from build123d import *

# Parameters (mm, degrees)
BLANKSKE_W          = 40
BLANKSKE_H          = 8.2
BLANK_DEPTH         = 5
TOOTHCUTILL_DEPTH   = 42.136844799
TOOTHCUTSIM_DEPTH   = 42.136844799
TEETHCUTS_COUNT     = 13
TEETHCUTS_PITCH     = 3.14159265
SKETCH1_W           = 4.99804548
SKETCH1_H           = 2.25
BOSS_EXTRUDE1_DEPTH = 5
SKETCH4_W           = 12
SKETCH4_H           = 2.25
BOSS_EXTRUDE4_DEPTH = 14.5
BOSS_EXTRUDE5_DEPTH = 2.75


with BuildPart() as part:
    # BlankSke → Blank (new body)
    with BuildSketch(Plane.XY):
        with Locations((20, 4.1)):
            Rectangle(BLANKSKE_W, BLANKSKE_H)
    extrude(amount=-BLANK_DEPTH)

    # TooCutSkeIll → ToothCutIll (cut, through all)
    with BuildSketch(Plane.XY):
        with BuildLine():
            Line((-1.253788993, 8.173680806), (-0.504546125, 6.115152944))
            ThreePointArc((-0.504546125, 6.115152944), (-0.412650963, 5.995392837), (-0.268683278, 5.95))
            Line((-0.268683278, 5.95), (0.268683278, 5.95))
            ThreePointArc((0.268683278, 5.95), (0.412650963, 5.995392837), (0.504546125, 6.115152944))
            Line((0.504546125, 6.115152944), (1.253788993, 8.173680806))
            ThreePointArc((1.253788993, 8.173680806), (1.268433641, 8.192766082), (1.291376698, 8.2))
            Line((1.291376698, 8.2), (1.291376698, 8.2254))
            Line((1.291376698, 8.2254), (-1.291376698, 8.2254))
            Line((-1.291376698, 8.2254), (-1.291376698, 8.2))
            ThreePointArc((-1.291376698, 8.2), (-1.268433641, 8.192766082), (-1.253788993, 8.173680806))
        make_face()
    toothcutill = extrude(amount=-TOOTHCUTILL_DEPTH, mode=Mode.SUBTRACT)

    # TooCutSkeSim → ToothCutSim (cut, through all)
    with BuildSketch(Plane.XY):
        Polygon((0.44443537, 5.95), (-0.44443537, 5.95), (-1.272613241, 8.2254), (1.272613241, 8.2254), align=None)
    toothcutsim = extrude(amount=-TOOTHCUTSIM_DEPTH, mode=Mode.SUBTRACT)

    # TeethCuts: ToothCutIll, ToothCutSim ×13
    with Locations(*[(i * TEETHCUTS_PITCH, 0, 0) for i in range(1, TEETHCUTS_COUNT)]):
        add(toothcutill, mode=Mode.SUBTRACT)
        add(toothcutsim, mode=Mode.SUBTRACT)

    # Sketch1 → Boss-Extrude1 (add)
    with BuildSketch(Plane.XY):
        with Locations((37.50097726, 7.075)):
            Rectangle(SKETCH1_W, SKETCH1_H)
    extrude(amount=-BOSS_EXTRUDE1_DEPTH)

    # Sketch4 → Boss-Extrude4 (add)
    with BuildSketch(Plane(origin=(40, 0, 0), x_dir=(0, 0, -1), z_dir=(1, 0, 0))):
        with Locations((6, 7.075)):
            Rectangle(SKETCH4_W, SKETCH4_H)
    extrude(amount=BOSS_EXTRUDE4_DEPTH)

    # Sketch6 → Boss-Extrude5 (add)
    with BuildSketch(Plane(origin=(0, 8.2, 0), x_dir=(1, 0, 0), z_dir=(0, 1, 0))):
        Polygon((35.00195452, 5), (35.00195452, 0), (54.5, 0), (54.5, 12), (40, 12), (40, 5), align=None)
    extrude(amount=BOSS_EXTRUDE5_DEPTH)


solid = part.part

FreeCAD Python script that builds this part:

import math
import FreeCAD as App
import Part
import Sketcher
Q = App.Units.Quantity


def add_polygon(sketch, points):
    """Adds a closed chain of lines whose ends are joined by coincident constraints."""
    first, n = sketch.GeometryCount, len(points)
    for a, b in zip(points, points[1:] + points[:1]):
        sketch.addGeometry(Part.LineSegment(App.Vector(*a, 0), App.Vector(*b, 0)), False)
    for i in range(n):
        sketch.addConstraint(Sketcher.Constraint("Coincident", first + i, 2, first + (i + 1) % n, 1))

doc = App.newDocument("Part")
params = doc.addObject("Spreadsheet::Sheet", "Params")
for row, (alias, value) in enumerate([
    ("sketch1_width", "40 mm"),
    ("sketch1_height", "8.2 mm"),
    ("pad1_length", "5 mm"),
    ("sketch2_radius", "0.04 mm"),
    ("linearpattern_pitch", "3.141593 mm"),
    ("sketch4_height", "2.25 mm"),
    ("pad2_length", "5 mm"),
    ("sketch5_height", "12 mm"),
    ("sketch5_width", "2.25 mm"),
    ("pad3_length", "14.5 mm"),
    ("sketch6_height", "5 mm"),
    ("sketch6_height2", "12 mm"),
    ("sketch6_width", "14.5 mm"),
    ("pad4_length", "2.75 mm"),
], start=1):
    params.set(f"A{row}", alias)
    params.set(f"B{row}", "=" + value)
    params.setAlias(f"B{row}", alias)

body = doc.addObject("PartDesign::Body", "Body")

sketch1 = body.newObject("Sketcher::SketchObject", "Sketch")
sketch1.AttachmentSupport = (doc.getObject("XY_Plane"), [""])
sketch1.MapMode = "FlatFace"
add_polygon(sketch1, [(0, 8), (0, 0), (40, 0), (40, 8)])
sketch1.addConstraint(Sketcher.Constraint("Vertical", 0))
sketch1.addConstraint(Sketcher.Constraint("Horizontal", 1))
sketch1.addConstraint(Sketcher.Constraint("Vertical", 2))
sketch1.addConstraint(Sketcher.Constraint("Horizontal", 3))
sketch1.addConstraint(Sketcher.Constraint("Coincident", 0, 2, -1, 1))
sketch1.addConstraint(Sketcher.Constraint("DistanceX", 1, 1, 1, 2, Q("40 mm")))
sketch1.addConstraint(Sketcher.Constraint("DistanceY", 0, 2, 0, 1, Q("8.2 mm")))
sketch1.setExpression("Constraints[9]", "Params.sketch1_width")
sketch1.setExpression("Constraints[10]", "Params.sketch1_height")
pad1 = body.newObject("PartDesign::Pad", "Pad")
pad1.Profile = sketch1
pad1.setExpression("Length", "Params.pad1_length")
pad1.Reversed = True

sketch2 = body.newObject("Sketcher::SketchObject", "Sketch001")
sketch2.AttachmentSupport = (doc.getObject("XY_Plane"), [""])
sketch2.MapMode = "FlatFace"
sketch2.addGeometry(Part.LineSegment(App.Vector(-1.254, 8.174, 0), App.Vector(-0.505, 6.115, 0)), False)
sketch2.addGeometry(Part.ArcOfCircle(Part.Circle(App.Vector(-0.269, 6.201, 0), App.Vector(0, 0, 1), 0.251), math.radians(-160), math.radians(-90)), False)
sketch2.addGeometry(Part.LineSegment(App.Vector(-0.269, 5.95, 0), App.Vector(0.269, 5.95, 0)), False)
sketch2.addGeometry(Part.ArcOfCircle(Part.Circle(App.Vector(0.269, 6.201, 0), App.Vector(0, 0, 1), 0.251), math.radians(-90), math.radians(-20)), False)
sketch2.addGeometry(Part.LineSegment(App.Vector(0.505, 6.115, 0), App.Vector(1.254, 8.174, 0)), False)
sketch2.addGeometry(Part.ArcOfCircle(Part.Circle(App.Vector(1.291, 8.16, 0), App.Vector(0, 0, 1), 0.04), math.radians(90), math.radians(160)), False)
sketch2.addGeometry(Part.LineSegment(App.Vector(1.291, 8.2, 0), App.Vector(1.291, 8.225, 0)), False)
sketch2.addGeometry(Part.LineSegment(App.Vector(1.291, 8.225, 0), App.Vector(-1.291, 8.225, 0)), False)
sketch2.addGeometry(Part.LineSegment(App.Vector(-1.291, 8.225, 0), App.Vector(-1.291, 8.2, 0)), False)
sketch2.addGeometry(Part.ArcOfCircle(Part.Circle(App.Vector(-1.291, 8.16, 0), App.Vector(0, 0, 1), 0.04), math.radians(20), math.radians(90)), False)
sketch2.addConstraint(Sketcher.Constraint("Tangent", 0, 2, 1, 1))
sketch2.addConstraint(Sketcher.Constraint("Tangent", 1, 2, 2, 1))
sketch2.addConstraint(Sketcher.Constraint("Tangent", 2, 2, 3, 1))
sketch2.addConstraint(Sketcher.Constraint("Tangent", 3, 2, 4, 1))
sketch2.addConstraint(Sketcher.Constraint("Tangent", 4, 2, 5, 2))
sketch2.addConstraint(Sketcher.Constraint("Coincident", 5, 1, 6, 1))
sketch2.addConstraint(Sketcher.Constraint("Coincident", 6, 2, 7, 1))
sketch2.addConstraint(Sketcher.Constraint("Coincident", 7, 2, 8, 1))
sketch2.addConstraint(Sketcher.Constraint("Coincident", 8, 2, 9, 2))
sketch2.addConstraint(Sketcher.Constraint("Tangent", 9, 1, 0, 1))
sketch2.addConstraint(Sketcher.Constraint("Horizontal", 2))
sketch2.addConstraint(Sketcher.Constraint("Vertical", 6))
sketch2.addConstraint(Sketcher.Constraint("Horizontal", 7))
sketch2.addConstraint(Sketcher.Constraint("Vertical", 8))
sketch2.addConstraint(Sketcher.Constraint("Equal", 1, 3))
sketch2.addConstraint(Sketcher.Constraint("Equal", 5, 9))
sketch2.addConstraint(Sketcher.Constraint("Symmetric", 5, 3, 9, 3, -2))
sketch2.addConstraint(Sketcher.Constraint("Horizontal", 0, 2, 3, 2))
sketch2.addConstraint(Sketcher.Constraint("Vertical", 9, 3, 7, 2))
sketch2.addConstraint(Sketcher.Constraint("Angle", 0, Q("-70 deg")))
sketch2.addConstraint(Sketcher.Constraint("Radius", 5, Q("0.04 mm")))
sketch2.addConstraint(Sketcher.Constraint("Radius", 1, Q("0.251 mm")))
sketch2.addConstraint(Sketcher.Constraint("DistanceY", -1, 1, 5, 1, Q("8.2 mm")))
sketch2.addConstraint(Sketcher.Constraint("DistanceY", -1, 1, 1, 2, Q("5.95 mm")))
sketch2.addConstraint(Sketcher.Constraint("DistanceY", 6, 1, 6, 2, Q("0.0254 mm")))
sketch2.addConstraint(Sketcher.Constraint("DistanceX", 2, 1, 2, 2, Q("0.537367 mm")))
sketch2.addConstraint(Sketcher.Constraint("DistanceX", 7, 2, 7, 1, Q("2.582753 mm")))
sketch2.setExpression("Constraints[20]", "Params.sketch2_radius")
pocket1 = body.newObject("PartDesign::Pocket", "Pocket")
pocket1.Profile = sketch2
pocket1.Type = "ThroughAll"

sketch3 = body.newObject("Sketcher::SketchObject", "Sketch002")
sketch3.AttachmentSupport = (doc.getObject("XY_Plane"), [""])
sketch3.MapMode = "FlatFace"
add_polygon(sketch3, [(-0.4, 6), (0.4, 6), (1.3, 8.2), (-1.3, 8.2)])
sketch3.addConstraint(Sketcher.Constraint("Horizontal", 0))
sketch3.addConstraint(Sketcher.Constraint("Horizontal", 2))
sketch3.addConstraint(Sketcher.Constraint("Equal", 1, 3))
sketch3.addConstraint(Sketcher.Constraint("Angle", 1, Q("70 deg")))
sketch3.addConstraint(Sketcher.Constraint("DistanceY", -1, 1, 0, 2, Q("5.95 mm")))
sketch3.addConstraint(Sketcher.Constraint("DistanceX", 0, 1, 0, 2, Q("0.888871 mm")))
sketch3.addConstraint(Sketcher.Constraint("DistanceY", -1, 1, 1, 2, Q("8.2254 mm")))
sketch3.addConstraint(Sketcher.Constraint("DistanceX", -1, 1, 0, 2, Q("0.444435 mm")))
pocket2 = body.newObject("PartDesign::Pocket", "Pocket001")
pocket2.Profile = sketch3
pocket2.Type = "ThroughAll"
doc.recompute()

linearpattern = body.newObject("PartDesign::LinearPattern", "LinearPattern")
linearpattern.Originals = [pocket1, pocket2]
linearpattern.Direction = (doc.getObject("X_Axis"), [""])
linearpattern.Mode = "offset"
linearpattern.setExpression("Offset", "Params.linearpattern_pitch")
linearpattern.Occurrences = 13
body.Tip = linearpattern

sketch4 = body.newObject("Sketcher::SketchObject", "Sketch003")
sketch4.AttachmentSupport = (doc.getObject("XY_Plane"), [""])
sketch4.MapMode = "FlatFace"
add_polygon(sketch4, [(35, 8.2), (35, 6), (40, 6), (40, 8.2)])
sketch4.addConstraint(Sketcher.Constraint("Vertical", 0))
sketch4.addConstraint(Sketcher.Constraint("Horizontal", 1))
sketch4.addConstraint(Sketcher.Constraint("Vertical", 2))
sketch4.addConstraint(Sketcher.Constraint("Horizontal", 3))
sketch4.addConstraint(Sketcher.Constraint("DistanceX", -1, 1, 1, 2, Q("40 mm")))
sketch4.addConstraint(Sketcher.Constraint("DistanceY", 0, 2, 0, 1, Q("2.25 mm")))
sketch4.addConstraint(Sketcher.Constraint("DistanceY", -1, 1, 2, 2, Q("8.2 mm")))
sketch4.addConstraint(Sketcher.Constraint("DistanceX", 1, 1, 1, 2, Q("4.998045 mm")))
sketch4.setExpression("Constraints[9]", "Params.sketch4_height")
pad2 = body.newObject("PartDesign::Pad", "Pad001")
pad2.Profile = sketch4
pad2.setExpression("Length", "Params.pad2_length")
pad2.Reversed = True

sketch5 = body.newObject("Sketcher::SketchObject", "Sketch004")
sketch5.AttachmentSupport = (doc.getObject("YZ_Plane"), [""])
sketch5.MapMode = "FlatFace"
sketch5.AttachmentOffset = App.Placement(App.Vector(0, 0, 40), App.Rotation())
add_polygon(sketch5, [(8.2, 0), (6, 0), (6, -12), (8.2, -12)])
sketch5.addConstraint(Sketcher.Constraint("Horizontal", 0))
sketch5.addConstraint(Sketcher.Constraint("Vertical", 1))
sketch5.addConstraint(Sketcher.Constraint("Horizontal", 2))
sketch5.addConstraint(Sketcher.Constraint("Vertical", 3))
sketch5.addConstraint(Sketcher.Constraint("PointOnObject", 0, 2, -1))
sketch5.addConstraint(Sketcher.Constraint("DistanceY", 1, 2, 1, 1, Q("12 mm")))
sketch5.addConstraint(Sketcher.Constraint("DistanceX", 0, 2, 0, 1, Q("2.25 mm")))
sketch5.addConstraint(Sketcher.Constraint("DistanceX", -1, 1, 2, 2, Q("8.2 mm")))
sketch5.setExpression("Constraints[9]", "Params.sketch5_height")
sketch5.setExpression("Constraints[10]", "Params.sketch5_width")
pad3 = body.newObject("PartDesign::Pad", "Pad002")
pad3.Profile = sketch5
pad3.setExpression("Length", "Params.pad3_length")

sketch6 = body.newObject("Sketcher::SketchObject", "Sketch005")
sketch6.AttachmentSupport = (doc.getObject("XZ_Plane"), [""])
sketch6.MapMode = "FlatFace"
sketch6.AttachmentOffset = App.Placement(App.Vector(0, 0, -8.2), App.Rotation())
add_polygon(sketch6, [(35, -5), (35, 0), (54.5, 0), (54.5, -12), (40, -12), (40, -5)])
sketch6.addConstraint(Sketcher.Constraint("Vertical", 0))
sketch6.addConstraint(Sketcher.Constraint("Horizontal", 1))
sketch6.addConstraint(Sketcher.Constraint("Vertical", 2))
sketch6.addConstraint(Sketcher.Constraint("Horizontal", 3))
sketch6.addConstraint(Sketcher.Constraint("Vertical", 4))
sketch6.addConstraint(Sketcher.Constraint("Horizontal", 5))
sketch6.addConstraint(Sketcher.Constraint("PointOnObject", 0, 2, -1))
sketch6.addConstraint(Sketcher.Constraint("DistanceY", 0, 1, 0, 2, Q("5 mm")))
sketch6.addConstraint(Sketcher.Constraint("DistanceY", 2, 2, 2, 1, Q("12 mm")))
sketch6.addConstraint(Sketcher.Constraint("DistanceX", 3, 2, 3, 1, Q("14.5 mm")))
sketch6.addConstraint(Sketcher.Constraint("DistanceX", -1, 1, 3, 2, Q("40 mm")))
sketch6.addConstraint(Sketcher.Constraint("DistanceX", 1, 1, 1, 2, Q("19.498045 mm")))
sketch6.setExpression("Constraints[13]", "Params.sketch6_height")
sketch6.setExpression("Constraints[14]", "Params.sketch6_height2")
sketch6.setExpression("Constraints[15]", "Params.sketch6_width")
pad4 = body.newObject("PartDesign::Pad", "Pad003")
pad4.Profile = sketch6
pad4.setExpression("Length", "Params.pad4_length")
pad4.Reversed = True

doc.recompute()
